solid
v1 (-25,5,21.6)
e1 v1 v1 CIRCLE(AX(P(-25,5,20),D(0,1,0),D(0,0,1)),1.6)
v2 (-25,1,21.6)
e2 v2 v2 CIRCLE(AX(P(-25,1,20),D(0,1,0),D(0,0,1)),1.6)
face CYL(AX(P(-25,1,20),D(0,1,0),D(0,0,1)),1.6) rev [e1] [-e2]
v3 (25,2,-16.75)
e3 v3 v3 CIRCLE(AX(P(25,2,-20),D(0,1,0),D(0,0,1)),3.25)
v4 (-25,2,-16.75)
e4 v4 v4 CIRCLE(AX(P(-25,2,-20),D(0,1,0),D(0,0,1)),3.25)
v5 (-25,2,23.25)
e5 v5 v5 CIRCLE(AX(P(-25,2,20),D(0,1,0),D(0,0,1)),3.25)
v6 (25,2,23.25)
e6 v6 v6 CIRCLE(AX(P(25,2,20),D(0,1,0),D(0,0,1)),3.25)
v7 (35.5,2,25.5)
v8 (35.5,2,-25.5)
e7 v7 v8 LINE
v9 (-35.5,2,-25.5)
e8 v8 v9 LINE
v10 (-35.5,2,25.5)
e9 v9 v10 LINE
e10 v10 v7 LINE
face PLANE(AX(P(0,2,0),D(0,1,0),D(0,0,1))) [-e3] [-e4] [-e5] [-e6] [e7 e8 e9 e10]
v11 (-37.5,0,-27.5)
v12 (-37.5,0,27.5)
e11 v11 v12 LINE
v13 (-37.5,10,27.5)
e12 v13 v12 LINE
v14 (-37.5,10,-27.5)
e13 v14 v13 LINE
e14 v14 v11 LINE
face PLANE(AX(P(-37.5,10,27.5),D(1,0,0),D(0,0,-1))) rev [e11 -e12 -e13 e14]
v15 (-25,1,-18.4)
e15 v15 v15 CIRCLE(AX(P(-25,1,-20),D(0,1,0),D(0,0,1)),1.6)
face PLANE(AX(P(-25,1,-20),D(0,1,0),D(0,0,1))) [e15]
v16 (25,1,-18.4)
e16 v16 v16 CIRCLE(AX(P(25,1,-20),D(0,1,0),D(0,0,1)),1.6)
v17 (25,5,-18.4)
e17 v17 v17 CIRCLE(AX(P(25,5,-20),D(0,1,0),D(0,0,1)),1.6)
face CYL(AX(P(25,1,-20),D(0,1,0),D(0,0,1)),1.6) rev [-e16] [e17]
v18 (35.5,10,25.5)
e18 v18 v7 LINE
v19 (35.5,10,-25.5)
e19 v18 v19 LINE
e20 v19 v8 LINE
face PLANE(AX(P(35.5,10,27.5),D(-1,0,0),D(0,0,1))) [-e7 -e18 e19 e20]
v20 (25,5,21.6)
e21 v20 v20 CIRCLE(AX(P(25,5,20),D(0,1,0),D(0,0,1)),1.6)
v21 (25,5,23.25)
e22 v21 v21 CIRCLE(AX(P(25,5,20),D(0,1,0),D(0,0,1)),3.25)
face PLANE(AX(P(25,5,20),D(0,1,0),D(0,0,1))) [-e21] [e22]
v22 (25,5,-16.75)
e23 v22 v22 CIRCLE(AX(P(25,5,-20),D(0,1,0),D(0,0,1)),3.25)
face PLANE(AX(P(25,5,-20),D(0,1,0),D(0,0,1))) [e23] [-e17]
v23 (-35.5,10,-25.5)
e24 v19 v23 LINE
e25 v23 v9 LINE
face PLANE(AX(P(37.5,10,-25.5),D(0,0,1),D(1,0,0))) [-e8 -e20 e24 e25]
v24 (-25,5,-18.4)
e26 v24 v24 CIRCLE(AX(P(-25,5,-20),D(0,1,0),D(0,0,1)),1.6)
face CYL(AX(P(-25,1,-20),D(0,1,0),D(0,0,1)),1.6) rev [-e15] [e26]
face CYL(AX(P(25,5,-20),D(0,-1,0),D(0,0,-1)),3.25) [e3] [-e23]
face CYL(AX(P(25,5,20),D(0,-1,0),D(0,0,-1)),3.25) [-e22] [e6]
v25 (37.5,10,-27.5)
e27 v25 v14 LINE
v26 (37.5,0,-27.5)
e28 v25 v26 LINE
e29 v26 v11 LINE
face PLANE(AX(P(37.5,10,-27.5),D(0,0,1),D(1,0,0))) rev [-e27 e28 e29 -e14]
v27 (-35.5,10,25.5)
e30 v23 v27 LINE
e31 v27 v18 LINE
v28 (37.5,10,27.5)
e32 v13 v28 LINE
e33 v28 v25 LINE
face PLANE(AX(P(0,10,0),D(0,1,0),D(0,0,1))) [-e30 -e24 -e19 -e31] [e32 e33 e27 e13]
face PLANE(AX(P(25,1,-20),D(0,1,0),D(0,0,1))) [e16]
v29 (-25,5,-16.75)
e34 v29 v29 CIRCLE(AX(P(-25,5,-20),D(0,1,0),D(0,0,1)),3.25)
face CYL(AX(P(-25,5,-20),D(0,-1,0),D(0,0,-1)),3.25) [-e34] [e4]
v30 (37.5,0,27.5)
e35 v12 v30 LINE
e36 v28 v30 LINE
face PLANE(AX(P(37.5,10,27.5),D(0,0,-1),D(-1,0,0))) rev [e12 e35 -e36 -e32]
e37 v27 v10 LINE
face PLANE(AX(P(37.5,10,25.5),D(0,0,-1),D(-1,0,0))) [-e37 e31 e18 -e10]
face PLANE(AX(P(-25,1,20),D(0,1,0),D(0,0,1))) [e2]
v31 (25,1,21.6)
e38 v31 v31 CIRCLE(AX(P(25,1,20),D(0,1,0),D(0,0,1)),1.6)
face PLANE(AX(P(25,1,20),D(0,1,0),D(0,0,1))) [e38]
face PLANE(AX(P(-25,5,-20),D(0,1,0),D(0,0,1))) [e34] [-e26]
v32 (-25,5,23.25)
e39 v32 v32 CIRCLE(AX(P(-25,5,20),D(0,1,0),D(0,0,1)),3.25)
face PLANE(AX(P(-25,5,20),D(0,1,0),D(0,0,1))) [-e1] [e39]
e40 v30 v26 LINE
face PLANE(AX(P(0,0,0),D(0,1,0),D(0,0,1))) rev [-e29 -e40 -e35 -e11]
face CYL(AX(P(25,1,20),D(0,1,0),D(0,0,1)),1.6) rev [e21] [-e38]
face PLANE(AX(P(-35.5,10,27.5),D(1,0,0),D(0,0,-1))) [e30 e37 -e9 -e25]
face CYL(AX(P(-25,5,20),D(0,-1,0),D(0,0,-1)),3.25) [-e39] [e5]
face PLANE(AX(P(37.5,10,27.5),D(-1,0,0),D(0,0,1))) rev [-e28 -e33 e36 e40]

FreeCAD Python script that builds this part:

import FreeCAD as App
import Part
import Sketcher


def faces_at(feature, points):
    """Names of the faces that lie closest to the given points."""
    faces = feature.Shape.Faces
    near = lambda p: min(range(len(faces)), key=lambda i: faces[i].distToShape(Part.Vertex(*p))[0])
    return sorted({f"Face{near(p) + 1}" for p in points})

doc = App.newDocument("Part")
body = doc.addObject("PartDesign::Body", "Body")

# Sketch on XZ plane
sketch1 = body.newObject("Sketcher::SketchObject", "Sketch")
sketch1.AttachmentSupport = (doc.getObject("XZ_Plane"), [""])
sketch1.MapMode = "FlatFace"
sketch1.addGeometry([
    Part.LineSegment(App.Vector(-38, -28, 0), App.Vector(-38, 28, 0)),
    Part.LineSegment(App.Vector(-38, 28, 0), App.Vector(38, 28, 0)),
    Part.LineSegment(App.Vector(38, 28, 0), App.Vector(38, -28, 0)),
    Part.LineSegment(App.Vector(38, -28, 0), App.Vector(-38, -28, 0)),
], False)
sketch1.addConstraint([
    Sketcher.Constraint("Coincident", 0, 2, 1, 1),
    Sketcher.Constraint("Coincident", 1, 2, 2, 1),
    Sketcher.Constraint("Coincident", 2, 2, 3, 1),
    Sketcher.Constraint("Coincident", 3, 2, 0, 1),
    Sketcher.Constraint("Vertical", 0),
    Sketcher.Constraint("Horizontal", 1),
    Sketcher.Constraint("Vertical", 2),
    Sketcher.Constraint("Horizontal", 3),
    Sketcher.Constraint("Symmetric", 0, 2, 2, 2, -1, 1),
    Sketcher.Constraint("DistanceX", 1, 1, 1, 2, 75.0),
    Sketcher.Constraint("DistanceY", 0, 1, 0, 2, 55.0),
])
pad1 = body.newObject("PartDesign::Pad", "Pad")
pad1.Profile = sketch1
pad1.Length = 10
pad1.Reversed = True
doc.recompute()

thickness = body.newObject("PartDesign::Thickness", "Thickness")
thickness.Base = (pad1, faces_at(pad1, [(0, 10, 0)]))
thickness.Value = 2
thickness.Reversed = True
thickness.Join = "Intersection"

# Sketch on XZ plane
sketch2 = body.newObject("Sketcher::SketchObject", "Sketch001")
sketch2.AttachmentSupport = (doc.getObject("XZ_Plane"), [""])
sketch2.MapMode = "FlatFace"
sketch2.AttachmentOffset = App.Placement(App.Vector(0, 0, -2), App.Rotation())
sketch2.addGeometry([
    Part.Circle(App.Vector(-25, -20, 0), App.Vector(0, 0, 1), 3.2),
    Part.Circle(App.Vector(25, -20, 0), App.Vector(0, 0, 1), 3.2),
    Part.Circle(App.Vector(25, 20, 0), App.Vector(0, 0, 1), 3.2),
    Part.Circle(App.Vector(-25, 20, 0), App.Vector(0, 0, 1), 3.2),
], False)
sketch2.addConstraint([
    Sketcher.Constraint("Equal", 0, 1),
    Sketcher.Constraint("Equal", 1, 2),
    Sketcher.Constraint("Equal", 2, 3),
    Sketcher.Constraint("Symmetric", 0, 3, 2, 3, -1, 1),
    Sketcher.Constraint("Symmetric", 1, 3, 3, 3, -1, 1),
    Sketcher.Constraint("Symmetric", 0, 3, 1, 3, -2),
    Sketcher.Constraint("Diameter", 0, 6.5),
    Sketcher.Constraint("DistanceX", 0, 3, -1, 1, 25.0),
    Sketcher.Constraint("DistanceY", 0, 3, -1, 1, 20.0),
])
pad2 = body.newObject("PartDesign::Pad", "Pad001")
pad2.Profile = sketch2
pad2.Length = 3
pad2.Reversed = True

# Sketch on XZ plane
sketch3 = body.newObject("Sketcher::SketchObject", "Sketch002")
sketch3.AttachmentSupport = (doc.getObject("XZ_Plane"), [""])
sketch3.MapMode = "FlatFace"
sketch3.AttachmentOffset = App.Placement(App.Vector(0, 0, -5), App.Rotation())
sketch3.addGeometry([
    Part.Circle(App.Vector(-25, -20, 0), App.Vector(0, 0, 1), 1.6),
    Part.Circle(App.Vector(25, -20, 0), App.Vector(0, 0, 1), 1.6),
    Part.Circle(App.Vector(25, 20, 0), App.Vector(0, 0, 1), 1.6),
    Part.Circle(App.Vector(-25, 20, 0), App.Vector(0, 0, 1), 1.6),
], False)
sketch3.addConstraint([
    Sketcher.Constraint("Equal", 0, 1),
    Sketcher.Constraint("Equal", 1, 2),
    Sketcher.Constraint("Equal", 2, 3),
    Sketcher.Constraint("Symmetric", 0, 3, 2, 3, -1, 1),
    Sketcher.Constraint("Symmetric", 1, 3, 3, 3, -1, 1),
    Sketcher.Constraint("Symmetric", 0, 3, 1, 3, -2),
    Sketcher.Constraint("Diameter", 0, 3.2),
    Sketcher.Constraint("DistanceX", 0, 3, -1, 1, 25.0),
    Sketcher.Constraint("DistanceY", 0, 3, -1, 1, 20.0),
])
pocket1 = body.newObject("PartDesign::Pocket", "Pocket")
pocket1.Profile = sketch3
pocket1.Length = 4
pocket1.Reversed = True

doc.recompute()
